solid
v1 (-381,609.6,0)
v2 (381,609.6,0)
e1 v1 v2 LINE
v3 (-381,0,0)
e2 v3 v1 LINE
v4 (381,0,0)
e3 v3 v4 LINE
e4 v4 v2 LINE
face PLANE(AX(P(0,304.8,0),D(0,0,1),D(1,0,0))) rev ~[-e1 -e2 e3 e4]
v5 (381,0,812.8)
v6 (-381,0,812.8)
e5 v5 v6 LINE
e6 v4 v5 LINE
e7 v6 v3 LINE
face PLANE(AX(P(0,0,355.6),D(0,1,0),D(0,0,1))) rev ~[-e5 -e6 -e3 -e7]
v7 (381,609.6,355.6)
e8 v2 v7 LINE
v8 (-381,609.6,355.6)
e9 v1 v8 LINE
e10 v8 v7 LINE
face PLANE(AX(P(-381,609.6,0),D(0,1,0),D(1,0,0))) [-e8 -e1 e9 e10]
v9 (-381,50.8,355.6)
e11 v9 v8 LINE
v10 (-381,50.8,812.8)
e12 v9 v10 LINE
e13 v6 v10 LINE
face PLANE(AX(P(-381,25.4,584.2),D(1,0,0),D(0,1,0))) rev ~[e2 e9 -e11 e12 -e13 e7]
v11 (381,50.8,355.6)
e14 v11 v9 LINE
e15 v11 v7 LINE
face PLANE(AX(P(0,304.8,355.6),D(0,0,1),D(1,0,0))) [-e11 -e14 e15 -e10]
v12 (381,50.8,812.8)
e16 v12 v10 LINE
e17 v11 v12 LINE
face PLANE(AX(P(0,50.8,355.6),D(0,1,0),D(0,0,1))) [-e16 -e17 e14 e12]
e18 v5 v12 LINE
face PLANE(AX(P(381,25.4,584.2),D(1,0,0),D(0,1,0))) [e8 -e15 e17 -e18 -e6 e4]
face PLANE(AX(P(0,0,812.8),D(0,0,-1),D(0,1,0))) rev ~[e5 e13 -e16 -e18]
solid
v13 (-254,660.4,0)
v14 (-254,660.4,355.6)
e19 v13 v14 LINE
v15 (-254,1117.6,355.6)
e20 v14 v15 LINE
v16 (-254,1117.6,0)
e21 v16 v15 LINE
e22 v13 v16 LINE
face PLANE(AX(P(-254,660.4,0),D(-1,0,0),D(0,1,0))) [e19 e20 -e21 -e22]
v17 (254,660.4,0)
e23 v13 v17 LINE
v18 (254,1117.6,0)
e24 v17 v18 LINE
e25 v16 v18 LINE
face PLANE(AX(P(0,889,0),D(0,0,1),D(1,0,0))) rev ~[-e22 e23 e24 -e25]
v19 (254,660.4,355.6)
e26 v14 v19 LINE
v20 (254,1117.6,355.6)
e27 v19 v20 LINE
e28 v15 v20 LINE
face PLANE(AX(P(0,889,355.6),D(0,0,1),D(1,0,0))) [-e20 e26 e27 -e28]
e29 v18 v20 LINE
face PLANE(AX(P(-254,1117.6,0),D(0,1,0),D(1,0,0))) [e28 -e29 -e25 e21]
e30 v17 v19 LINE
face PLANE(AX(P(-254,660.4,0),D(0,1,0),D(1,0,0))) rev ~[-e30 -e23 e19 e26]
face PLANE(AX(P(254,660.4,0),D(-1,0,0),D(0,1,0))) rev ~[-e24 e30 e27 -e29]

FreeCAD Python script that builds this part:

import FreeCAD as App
import Part
import Sketcher
Q = App.Units.Quantity

doc = App.newDocument("Part")
params = doc.addObject("Spreadsheet::Sheet", "Params")
for row, (alias, value) in enumerate([
    ("sketch1_width", "30 in"),
    ("sketch1_width2", "20 in"),
    ("sketch1_height", "24 in"),
    ("sketch1_height2", "18 in"),
    ("pad1_length", "14 in"),
    ("sketch2_width", "2 in"),
    ("sketch2_height", "18 in"),
    ("pad2_length", "15 in"),
    ("pad2_length2", "15 in"),
], start=1):
    params.set(f"A{row}", alias)
    params.set(f"B{row}", "=" + value)
    params.setAlias(f"B{row}", alias)

body = doc.addObject("PartDesign::Body", "Body")
body.AllowCompound = True

# Sketch on XY plane
sketch1 = body.newObject("Sketcher::SketchObject", "Sketch")
sketch1.AttachmentSupport = (doc.getObject("XY_Plane"), [""])
sketch1.MapMode = "FlatFace"
sketch1.addGeometry([
    Part.LineSegment(App.Vector(-381, 610, 0), App.Vector(-381, 0, 0)),  # 0
    Part.LineSegment(App.Vector(-381, 0, 0), App.Vector(381, 0, 0)),  # 1
    Part.LineSegment(App.Vector(381, 0, 0), App.Vector(381, 610, 0)),  # 2
    Part.LineSegment(App.Vector(381, 610, 0), App.Vector(-381, 610, 0)),  # 3
    Part.LineSegment(App.Vector(-254, 1118, 0), App.Vector(-254, 660, 0)),  # 4
    Part.LineSegment(App.Vector(-254, 660, 0), App.Vector(254, 660, 0)),  # 5
    Part.LineSegment(App.Vector(254, 660, 0), App.Vector(254, 1118, 0)),  # 6
    Part.LineSegment(App.Vector(254, 1118, 0), App.Vector(-254, 1118, 0)),  # 7
], False)
sketch1.addConstraint([
    Sketcher.Constraint("Coincident", 0, 2, 1, 1),
    Sketcher.Constraint("Coincident", 1, 2, 2, 1),
    Sketcher.Constraint("Coincident", 2, 2, 3, 1),
    Sketcher.Constraint("Coincident", 3, 2, 0, 1),
    Sketcher.Constraint("Coincident", 4, 2, 5, 1),
    Sketcher.Constraint("Coincident", 5, 2, 6, 1),
    Sketcher.Constraint("Coincident", 6, 2, 7, 1),
    Sketcher.Constraint("Coincident", 7, 2, 4, 1),
    Sketcher.Constraint("Vertical", 0),
    Sketcher.Constraint("Horizontal", 1),
    Sketcher.Constraint("Vertical", 2),
    Sketcher.Constraint("Horizontal", 3),
    Sketcher.Constraint("Vertical", 4),
    Sketcher.Constraint("Horizontal", 5),
    Sketcher.Constraint("Vertical", 6),
    Sketcher.Constraint("Horizontal", 7),
    Sketcher.Constraint("Symmetric", 0, 2, 1, 2, -1, 1),
    Sketcher.Constraint("DistanceX", 1, 1, 1, 2, Q("30 in")),
    Sketcher.Constraint("DistanceX", 5, 1, 5, 2, Q("20 in")),
    Sketcher.Constraint("DistanceY", 0, 2, 0, 1, Q("24 in")),
    Sketcher.Constraint("DistanceY", 4, 2, 4, 1, Q("18 in")),
    Sketcher.Constraint("DistanceX", 4, 2, -1, 1, Q("10 in")),
    Sketcher.Constraint("DistanceY", -1, 1, 4, 2, Q("26 in")),
])
sketch1.setExpression("Constraints[17]", "Params.sketch1_width")
sketch1.setExpression("Constraints[18]", "Params.sketch1_width2")
sketch1.setExpression("Constraints[19]", "Params.sketch1_height")
sketch1.setExpression("Constraints[20]", "Params.sketch1_height2")
pad1 = body.newObject("PartDesign::Pad", "Pad")
pad1.Profile = sketch1
pad1.setExpression("Length", "Params.pad1_length")

# Sketch on YZ plane
sketch2 = body.newObject("Sketcher::SketchObject", "Sketch001")
sketch2.AttachmentSupport = (doc.getObject("YZ_Plane"), [""])
sketch2.MapMode = "FlatFace"
sketch2.addGeometry([
    Part.LineSegment(App.Vector(0, 813, 0), App.Vector(0, 356, 0)),
    Part.LineSegment(App.Vector(0, 356, 0), App.Vector(51, 356, 0)),
    Part.LineSegment(App.Vector(51, 356, 0), App.Vector(51, 813, 0)),
    Part.LineSegment(App.Vector(51, 813, 0), App.Vector(0, 813, 0)),
], False)
sketch2.addConstraint([
    Sketcher.Constraint("Coincident", 0, 2, 1, 1),
    Sketcher.Constraint("Coincident", 1, 2, 2, 1),
    Sketcher.Constraint("Coincident", 2, 2, 3, 1),
    Sketcher.Constraint("Coincident", 3, 2, 0, 1),
    Sketcher.Constraint("Vertical", 0),
    Sketcher.Constraint("Horizontal", 1),
    Sketcher.Constraint("Vertical", 2),
    Sketcher.Constraint("Horizontal", 3),
    Sketcher.Constraint("PointOnObject", 0, 2, -2),
    Sketcher.Constraint("DistanceX", 1, 1, 1, 2, Q("2 in")),
    Sketcher.Constraint("DistanceY", 0, 2, 0, 1, Q("18 in")),
    Sketcher.Constraint("DistanceY", -1, 1, 0, 2, Q("14 in")),
])
sketch2.setExpression("Constraints[9]", "Params.sketch2_width")
sketch2.setExpression("Constraints[10]", "Params.sketch2_height")
pad2 = body.newObject("PartDesign::Pad", "Pad001")
pad2.Profile = sketch2
pad2.Type = "TwoLengths"
pad2.setExpression("Length", "Params.pad2_length")
pad2.setExpression("Length2", "Params.pad2_length2")

doc.recompute()
